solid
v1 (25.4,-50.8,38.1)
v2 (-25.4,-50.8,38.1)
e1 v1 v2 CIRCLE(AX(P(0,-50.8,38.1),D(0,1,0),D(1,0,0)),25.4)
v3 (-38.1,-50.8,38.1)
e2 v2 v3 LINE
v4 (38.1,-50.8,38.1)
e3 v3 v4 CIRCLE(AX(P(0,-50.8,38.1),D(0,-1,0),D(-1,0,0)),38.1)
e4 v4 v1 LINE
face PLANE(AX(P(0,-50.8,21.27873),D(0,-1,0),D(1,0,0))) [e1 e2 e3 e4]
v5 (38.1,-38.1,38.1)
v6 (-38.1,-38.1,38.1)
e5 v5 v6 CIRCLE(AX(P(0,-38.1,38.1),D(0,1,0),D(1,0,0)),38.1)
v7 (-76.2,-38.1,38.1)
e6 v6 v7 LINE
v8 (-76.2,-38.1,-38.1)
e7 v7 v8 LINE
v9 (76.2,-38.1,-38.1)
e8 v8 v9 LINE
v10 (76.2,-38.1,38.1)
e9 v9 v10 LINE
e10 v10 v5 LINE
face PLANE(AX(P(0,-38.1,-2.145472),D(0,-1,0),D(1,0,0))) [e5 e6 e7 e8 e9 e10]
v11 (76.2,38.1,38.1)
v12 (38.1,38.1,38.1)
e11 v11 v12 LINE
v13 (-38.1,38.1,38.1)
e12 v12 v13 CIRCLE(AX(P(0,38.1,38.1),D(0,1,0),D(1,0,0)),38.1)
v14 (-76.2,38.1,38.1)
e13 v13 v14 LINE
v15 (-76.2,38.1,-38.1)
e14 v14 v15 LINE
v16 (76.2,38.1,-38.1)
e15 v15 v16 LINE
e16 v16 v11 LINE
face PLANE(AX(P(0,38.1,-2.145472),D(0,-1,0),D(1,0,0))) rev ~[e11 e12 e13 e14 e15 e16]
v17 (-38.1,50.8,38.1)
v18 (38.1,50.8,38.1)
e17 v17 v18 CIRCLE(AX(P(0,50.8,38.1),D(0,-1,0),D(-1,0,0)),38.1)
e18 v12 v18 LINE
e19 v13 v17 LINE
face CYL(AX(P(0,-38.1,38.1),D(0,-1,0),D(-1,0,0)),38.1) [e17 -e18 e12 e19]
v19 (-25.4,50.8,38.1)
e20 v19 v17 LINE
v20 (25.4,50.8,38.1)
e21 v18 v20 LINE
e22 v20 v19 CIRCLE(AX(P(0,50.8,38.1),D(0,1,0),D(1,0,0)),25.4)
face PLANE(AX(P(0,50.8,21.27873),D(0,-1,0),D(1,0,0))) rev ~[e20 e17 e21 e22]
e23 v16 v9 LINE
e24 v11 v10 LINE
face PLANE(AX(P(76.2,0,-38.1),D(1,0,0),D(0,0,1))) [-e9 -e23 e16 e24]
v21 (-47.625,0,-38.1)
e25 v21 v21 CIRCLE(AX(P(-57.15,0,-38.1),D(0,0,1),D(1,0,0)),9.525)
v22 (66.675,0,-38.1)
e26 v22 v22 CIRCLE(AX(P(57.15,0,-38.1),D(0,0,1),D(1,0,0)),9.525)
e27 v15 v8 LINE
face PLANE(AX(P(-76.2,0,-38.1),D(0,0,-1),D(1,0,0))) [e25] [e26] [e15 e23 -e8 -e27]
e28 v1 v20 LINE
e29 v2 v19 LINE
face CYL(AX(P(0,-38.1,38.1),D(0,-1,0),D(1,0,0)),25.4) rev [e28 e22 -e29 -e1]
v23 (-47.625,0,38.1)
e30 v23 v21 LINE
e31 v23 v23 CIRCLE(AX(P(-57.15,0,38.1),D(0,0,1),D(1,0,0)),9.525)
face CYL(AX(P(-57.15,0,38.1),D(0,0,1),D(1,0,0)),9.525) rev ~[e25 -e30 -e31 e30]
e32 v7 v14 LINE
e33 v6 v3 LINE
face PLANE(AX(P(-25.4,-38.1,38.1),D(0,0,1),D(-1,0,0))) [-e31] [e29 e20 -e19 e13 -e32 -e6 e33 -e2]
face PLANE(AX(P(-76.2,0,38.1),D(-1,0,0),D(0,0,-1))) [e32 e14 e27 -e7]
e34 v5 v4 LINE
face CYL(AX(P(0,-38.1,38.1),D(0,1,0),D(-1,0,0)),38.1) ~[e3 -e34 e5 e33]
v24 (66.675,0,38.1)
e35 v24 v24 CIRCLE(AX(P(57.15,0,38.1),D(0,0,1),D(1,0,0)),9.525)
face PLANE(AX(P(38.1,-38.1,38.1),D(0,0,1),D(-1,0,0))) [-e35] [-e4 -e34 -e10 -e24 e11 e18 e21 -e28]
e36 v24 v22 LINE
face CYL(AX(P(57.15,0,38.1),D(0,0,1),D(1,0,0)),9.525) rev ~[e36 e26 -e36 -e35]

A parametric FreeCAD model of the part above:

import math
import FreeCAD as App
import Part
import Sketcher
Q = App.Units.Quantity

doc = App.newDocument("Part")
body = doc.addObject("PartDesign::Body", "Body")

# Sketch on XZ plane
sketch1 = body.newObject("Sketcher::SketchObject", "Sketch")
sketch1.AttachmentSupport = (doc.getObject("XZ_Plane"), [""])
sketch1.MapMode = "FlatFace"
sketch1.addGeometry(Part.LineSegment(App.Vector(-76, 38, 0), App.Vector(-76, -38, 0)), False)
sketch1.addGeometry(Part.LineSegment(App.Vector(-76, -38, 0), App.Vector(76, -38, 0)), False)
sketch1.addGeometry(Part.LineSegment(App.Vector(76, -38, 0), App.Vector(76, 38, 0)), False)
sketch1.addGeometry(Part.LineSegment(App.Vector(76, 38, 0), App.Vector(38, 38, 0)), False)
sketch1.addGeometry(Part.ArcOfCircle(Part.Circle(App.Vector(0, 38, 0), App.Vector(0, 0, 1), 38), math.radians(180), math.radians(360)), False)
sketch1.addGeometry(Part.LineSegment(App.Vector(-38, 38, 0), App.Vector(-76, 38, 0)), False)
sketch1.addConstraint(Sketcher.Constraint("Coincident", 0, 2, 1, 1))
sketch1.addConstraint(Sketcher.Constraint("Coincident", 1, 2, 2, 1))
sketch1.addConstraint(Sketcher.Constraint("Coincident", 2, 2, 3, 1))
sketch1.addConstraint(Sketcher.Constraint("Coincident", 3, 2, 4, 2))
sketch1.addConstraint(Sketcher.Constraint("Coincident", 4, 1, 5, 1))
sketch1.addConstraint(Sketcher.Constraint("Coincident", 5, 2, 0, 1))
sketch1.addConstraint(Sketcher.Constraint("Vertical", 0))
sketch1.addConstraint(Sketcher.Constraint("Horizontal", 1))
sketch1.addConstraint(Sketcher.Constraint("Vertical", 2))
sketch1.addConstraint(Sketcher.Constraint("Horizontal", 3))
sketch1.addConstraint(Sketcher.Constraint("Horizontal", 5))
sketch1.addConstraint(Sketcher.Constraint("Symmetric", 0, 2, 2, 2, -1, 1))
sketch1.addConstraint(Sketcher.Constraint("Symmetric", 3, 2, 4, 1, -2))
sketch1.addConstraint(Sketcher.Constraint("Horizontal", 4, 3, 2, 2))
sketch1.addConstraint(Sketcher.Constraint("Radius", 4, Q("1.5 in")))
sketch1.addConstraint(Sketcher.Constraint("DistanceX", 1, 1, 1, 2, Q("6 in")))
sketch1.addConstraint(Sketcher.Constraint("DistanceY", 0, 2, 0, 1, Q("3 in")))
pad1 = body.newObject("PartDesign::Pad", "Pad")
pad1.Profile = sketch1
pad1.Length = Q("3 in")
pad1.Midplane = True

# Sketch on XZ plane
sketch2 = body.newObject("Sketcher::SketchObject", "Sketch001")
sketch2.AttachmentSupport = (doc.getObject("XZ_Plane"), [""])
sketch2.MapMode = "FlatFace"
sketch2.AttachmentOffset = App.Placement(App.Vector(0, 0, 1.5 * 25.4), App.Rotation())
sketch2.addGeometry(Part.LineSegment(App.Vector(-25, 38, 0), App.Vector(-38, 38, 0)), False)
sketch2.addGeometry(Part.ArcOfCircle(Part.Circle(App.Vector(0, 38, 0), App.Vector(0, 0, 1), 38), math.radians(180), math.radians(360)), False)
sketch2.addGeometry(Part.LineSegment(App.Vector(38, 38, 0), App.Vector(25, 38, 0)), False)
sketch2.addGeometry(Part.ArcOfCircle(Part.Circle(App.Vector(0, 38, 0), App.Vector(0, 0, 1), 25), math.radians(180), math.radians(360)), False)
sketch2.addConstraint(Sketcher.Constraint("Coincident", 0, 2, 1, 1))
sketch2.addConstraint(Sketcher.Constraint("Coincident", 1, 2, 2, 1))
sketch2.addConstraint(Sketcher.Constraint("Coincident", 2, 2, 3, 2))
sketch2.addConstraint(Sketcher.Constraint("Coincident", 3, 1, 0, 1))
sketch2.addConstraint(Sketcher.Constraint("Horizontal", 0))
sketch2.addConstraint(Sketcher.Constraint("Horizontal", 2))
sketch2.addConstraint(Sketcher.Constraint("Coincident", 3, 3, 1, 3))
sketch2.addConstraint(Sketcher.Constraint("Symmetric", 0, 2, 1, 2, -2))
sketch2.addConstraint(Sketcher.Constraint("Horizontal", 3, 3, 0, 2))
sketch2.addConstraint(Sketcher.Constraint("Radius", 3, Q("1 in")))
sketch2.addConstraint(Sketcher.Constraint("Radius", 1, Q("1.5 in")))
sketch2.addConstraint(Sketcher.Constraint("DistanceY", -1, 1, 1, 3, Q("1.5 in")))
pad2 = body.newObject("PartDesign::Pad", "Pad001")
pad2.Profile = sketch2
pad2.Type = "TwoLengths"
pad2.Length = Q("0.5 in")
pad2.Length2 = Q("3.5 in")

# Sketch on XY plane
sketch3 = body.newObject("Sketcher::SketchObject", "Sketch002")
sketch3.AttachmentSupport = (doc.getObject("XY_Plane"), [""])
sketch3.MapMode = "FlatFace"
sketch3.AttachmentOffset = App.Placement(App.Vector(0, 0, 1.5 * 25.4), App.Rotation())
sketch3.addGeometry(Part.Circle(App.Vector(-57, 0, 0), App.Vector(0, 0, 1), 10), False)
sketch3.addGeometry(Part.Circle(App.Vector(57, 0, 0), App.Vector(0, 0, 1), 10), False)
sketch3.addConstraint(Sketcher.Constraint("Equal", 0, 1))
sketch3.addConstraint(Sketcher.Constraint("Symmetric", 0, 3, 1, 3, -1, 1))
sketch3.addConstraint(Sketcher.Constraint("PointOnObject", 0, 3, -1))
sketch3.addConstraint(Sketcher.Constraint("Diameter", 0, Q("0.75 in")))
sketch3.addConstraint(Sketcher.Constraint("DistanceX", 0, 3, 1, 3, Q("4.5 in")))
pocket1 = body.newObject("PartDesign::Pocket", "Pocket")
pocket1.Profile = sketch3
pocket1.Length = Q("4.45 in")

doc.recompute()
